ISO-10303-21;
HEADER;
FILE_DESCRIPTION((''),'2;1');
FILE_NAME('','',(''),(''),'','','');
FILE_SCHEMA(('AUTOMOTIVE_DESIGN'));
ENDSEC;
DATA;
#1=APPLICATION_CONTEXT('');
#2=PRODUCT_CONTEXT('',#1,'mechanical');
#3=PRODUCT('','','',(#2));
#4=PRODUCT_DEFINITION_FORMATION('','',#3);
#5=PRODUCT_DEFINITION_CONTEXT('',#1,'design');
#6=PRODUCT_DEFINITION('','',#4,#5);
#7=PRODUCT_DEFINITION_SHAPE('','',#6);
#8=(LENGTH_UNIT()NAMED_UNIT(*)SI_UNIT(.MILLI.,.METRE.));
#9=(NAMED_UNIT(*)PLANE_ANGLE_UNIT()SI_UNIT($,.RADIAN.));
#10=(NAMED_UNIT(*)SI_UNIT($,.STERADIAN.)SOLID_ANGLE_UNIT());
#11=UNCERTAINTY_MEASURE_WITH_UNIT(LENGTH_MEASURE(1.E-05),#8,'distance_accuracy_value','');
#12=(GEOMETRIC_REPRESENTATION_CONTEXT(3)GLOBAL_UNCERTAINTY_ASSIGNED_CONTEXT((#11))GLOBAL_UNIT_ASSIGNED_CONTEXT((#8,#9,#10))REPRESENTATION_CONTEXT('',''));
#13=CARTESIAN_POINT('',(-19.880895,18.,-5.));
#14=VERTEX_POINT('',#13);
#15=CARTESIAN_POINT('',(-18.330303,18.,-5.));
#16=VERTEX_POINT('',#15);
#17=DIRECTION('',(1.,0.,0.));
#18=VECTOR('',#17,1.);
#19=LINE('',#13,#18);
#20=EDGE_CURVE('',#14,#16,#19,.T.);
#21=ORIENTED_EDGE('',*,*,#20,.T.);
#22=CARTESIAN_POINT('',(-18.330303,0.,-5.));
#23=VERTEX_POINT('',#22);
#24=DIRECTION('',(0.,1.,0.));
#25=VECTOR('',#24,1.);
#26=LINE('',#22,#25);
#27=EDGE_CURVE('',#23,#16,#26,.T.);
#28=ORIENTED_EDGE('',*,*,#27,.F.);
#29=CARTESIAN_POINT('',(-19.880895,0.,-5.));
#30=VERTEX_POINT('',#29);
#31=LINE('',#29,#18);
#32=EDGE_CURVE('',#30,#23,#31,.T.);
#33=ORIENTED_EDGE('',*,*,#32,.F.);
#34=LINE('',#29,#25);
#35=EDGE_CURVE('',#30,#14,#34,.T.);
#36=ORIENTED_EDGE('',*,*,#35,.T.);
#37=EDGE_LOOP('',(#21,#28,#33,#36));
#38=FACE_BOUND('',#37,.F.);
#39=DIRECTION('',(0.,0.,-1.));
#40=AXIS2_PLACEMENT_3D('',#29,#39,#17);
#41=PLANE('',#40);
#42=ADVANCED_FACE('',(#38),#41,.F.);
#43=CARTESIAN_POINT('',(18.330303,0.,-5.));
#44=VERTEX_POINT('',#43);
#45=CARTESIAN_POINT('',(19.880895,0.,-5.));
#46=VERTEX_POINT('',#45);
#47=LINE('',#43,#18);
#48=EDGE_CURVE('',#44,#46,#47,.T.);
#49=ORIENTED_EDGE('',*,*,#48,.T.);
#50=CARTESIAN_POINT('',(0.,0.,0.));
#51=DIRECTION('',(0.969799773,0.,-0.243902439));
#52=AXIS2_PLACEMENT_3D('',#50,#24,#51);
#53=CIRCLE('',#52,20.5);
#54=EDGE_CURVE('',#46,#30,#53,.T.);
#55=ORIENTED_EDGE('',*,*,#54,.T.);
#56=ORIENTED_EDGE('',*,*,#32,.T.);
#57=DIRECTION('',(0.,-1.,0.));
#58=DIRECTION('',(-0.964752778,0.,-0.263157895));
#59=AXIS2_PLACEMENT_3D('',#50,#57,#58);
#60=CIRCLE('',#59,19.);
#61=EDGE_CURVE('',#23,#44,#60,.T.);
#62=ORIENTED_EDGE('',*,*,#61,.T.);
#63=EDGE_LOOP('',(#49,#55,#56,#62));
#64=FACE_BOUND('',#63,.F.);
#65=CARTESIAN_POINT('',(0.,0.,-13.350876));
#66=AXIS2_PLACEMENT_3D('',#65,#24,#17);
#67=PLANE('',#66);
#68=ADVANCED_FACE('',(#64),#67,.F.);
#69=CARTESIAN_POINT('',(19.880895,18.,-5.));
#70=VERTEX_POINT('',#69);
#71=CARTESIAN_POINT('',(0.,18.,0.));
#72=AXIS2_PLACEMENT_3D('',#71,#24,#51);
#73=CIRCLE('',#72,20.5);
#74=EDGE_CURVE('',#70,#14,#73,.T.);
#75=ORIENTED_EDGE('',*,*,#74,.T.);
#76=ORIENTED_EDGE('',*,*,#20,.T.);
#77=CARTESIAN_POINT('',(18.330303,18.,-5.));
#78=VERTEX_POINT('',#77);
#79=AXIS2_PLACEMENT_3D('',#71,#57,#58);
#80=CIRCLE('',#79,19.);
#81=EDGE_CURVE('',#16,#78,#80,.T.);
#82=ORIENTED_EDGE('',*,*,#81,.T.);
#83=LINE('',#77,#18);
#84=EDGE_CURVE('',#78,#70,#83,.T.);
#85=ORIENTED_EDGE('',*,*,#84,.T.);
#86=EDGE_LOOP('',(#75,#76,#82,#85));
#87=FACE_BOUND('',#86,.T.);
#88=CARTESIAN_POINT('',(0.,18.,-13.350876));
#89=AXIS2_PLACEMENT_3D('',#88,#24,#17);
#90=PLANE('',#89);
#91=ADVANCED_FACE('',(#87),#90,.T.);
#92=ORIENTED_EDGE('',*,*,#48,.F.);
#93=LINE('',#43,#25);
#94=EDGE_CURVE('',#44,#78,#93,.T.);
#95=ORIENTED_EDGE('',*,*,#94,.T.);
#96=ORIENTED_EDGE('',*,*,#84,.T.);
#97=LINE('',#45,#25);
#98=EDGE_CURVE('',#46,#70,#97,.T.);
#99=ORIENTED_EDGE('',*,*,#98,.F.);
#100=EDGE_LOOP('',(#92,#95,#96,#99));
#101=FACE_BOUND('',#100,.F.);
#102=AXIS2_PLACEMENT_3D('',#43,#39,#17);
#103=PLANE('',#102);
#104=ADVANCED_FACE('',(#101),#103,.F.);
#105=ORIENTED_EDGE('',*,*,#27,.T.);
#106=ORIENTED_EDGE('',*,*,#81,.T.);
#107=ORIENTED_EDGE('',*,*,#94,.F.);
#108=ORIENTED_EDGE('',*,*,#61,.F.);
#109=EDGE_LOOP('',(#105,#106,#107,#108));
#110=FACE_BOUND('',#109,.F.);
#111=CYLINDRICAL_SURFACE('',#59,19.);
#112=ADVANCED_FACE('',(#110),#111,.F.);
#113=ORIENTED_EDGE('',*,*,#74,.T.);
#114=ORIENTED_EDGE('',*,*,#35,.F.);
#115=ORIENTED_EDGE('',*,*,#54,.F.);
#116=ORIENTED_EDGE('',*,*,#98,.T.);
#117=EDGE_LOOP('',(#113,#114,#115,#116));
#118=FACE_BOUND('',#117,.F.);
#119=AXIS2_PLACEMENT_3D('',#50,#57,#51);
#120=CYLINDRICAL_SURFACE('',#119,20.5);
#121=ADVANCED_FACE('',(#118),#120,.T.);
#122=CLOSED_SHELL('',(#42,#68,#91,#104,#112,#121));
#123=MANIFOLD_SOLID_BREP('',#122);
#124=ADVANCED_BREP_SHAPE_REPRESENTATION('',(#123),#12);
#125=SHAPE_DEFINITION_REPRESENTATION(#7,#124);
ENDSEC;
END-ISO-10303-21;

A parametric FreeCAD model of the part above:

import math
import FreeCAD as App
import Part
import Sketcher
from FreeCAD import Vector
Q = App.Units.Quantity

doc = App.newDocument("Part")
body = doc.addObject("PartDesign::Body", "Body")

sketch1 = body.newObject("Sketcher::SketchObject", "Sketch")
sketch1.AttachmentSupport = (doc.getObject("XZ_Plane"), [""])
sketch1.MapMode = "FlatFace"
sketch1.addGeometry([
    Part.LineSegment(Vector(-19.880895, -5, 0), Vector(-18.330303, -5, 0)),
    Part.ArcOfCircle(Part.Circle(Vector(0, 0, 0), Vector(0, 0, 1), 19), math.radians(-164.742477), math.radians(-15.257523)),
    Part.LineSegment(Vector(18.330303, -5, 0), Vector(19.880895, -5, 0)),
    Part.ArcOfCircle(Part.Circle(Vector(0, 0, 0), Vector(0, 0, 1), 20.5), math.radians(-165.883019), math.radians(-14.116981)),
], False)
sketch1.addConstraint([
    Sketcher.Constraint("Coincident", 0, 2, 1, 1),
    Sketcher.Constraint("Coincident", 1, 2, 2, 1),
    Sketcher.Constraint("Coincident", 2, 2, 3, 2),
    Sketcher.Constraint("Coincident", 3, 1, 0, 1),
    Sketcher.Constraint("Horizontal", 0),
    Sketcher.Constraint("Horizontal", 2),
    Sketcher.Constraint("Coincident", 1, 3, -1, 1),
    Sketcher.Constraint("Coincident", 3, 3, -1, 1),
    Sketcher.Constraint("Horizontal", 0, 2, 1, 2),
    Sketcher.Constraint("Radius", 1, Q("19 mm")),
    Sketcher.Constraint("Radius", 3, Q("20.5 mm")),
    Sketcher.Constraint("DistanceY", 0, 2, -1, 1, Q("5 mm")),
])
pad1 = body.newObject("PartDesign::Pad", "Pad")
pad1.Profile = sketch1
pad1.Length = 18
pad1.Reversed = True

doc.recompute()
